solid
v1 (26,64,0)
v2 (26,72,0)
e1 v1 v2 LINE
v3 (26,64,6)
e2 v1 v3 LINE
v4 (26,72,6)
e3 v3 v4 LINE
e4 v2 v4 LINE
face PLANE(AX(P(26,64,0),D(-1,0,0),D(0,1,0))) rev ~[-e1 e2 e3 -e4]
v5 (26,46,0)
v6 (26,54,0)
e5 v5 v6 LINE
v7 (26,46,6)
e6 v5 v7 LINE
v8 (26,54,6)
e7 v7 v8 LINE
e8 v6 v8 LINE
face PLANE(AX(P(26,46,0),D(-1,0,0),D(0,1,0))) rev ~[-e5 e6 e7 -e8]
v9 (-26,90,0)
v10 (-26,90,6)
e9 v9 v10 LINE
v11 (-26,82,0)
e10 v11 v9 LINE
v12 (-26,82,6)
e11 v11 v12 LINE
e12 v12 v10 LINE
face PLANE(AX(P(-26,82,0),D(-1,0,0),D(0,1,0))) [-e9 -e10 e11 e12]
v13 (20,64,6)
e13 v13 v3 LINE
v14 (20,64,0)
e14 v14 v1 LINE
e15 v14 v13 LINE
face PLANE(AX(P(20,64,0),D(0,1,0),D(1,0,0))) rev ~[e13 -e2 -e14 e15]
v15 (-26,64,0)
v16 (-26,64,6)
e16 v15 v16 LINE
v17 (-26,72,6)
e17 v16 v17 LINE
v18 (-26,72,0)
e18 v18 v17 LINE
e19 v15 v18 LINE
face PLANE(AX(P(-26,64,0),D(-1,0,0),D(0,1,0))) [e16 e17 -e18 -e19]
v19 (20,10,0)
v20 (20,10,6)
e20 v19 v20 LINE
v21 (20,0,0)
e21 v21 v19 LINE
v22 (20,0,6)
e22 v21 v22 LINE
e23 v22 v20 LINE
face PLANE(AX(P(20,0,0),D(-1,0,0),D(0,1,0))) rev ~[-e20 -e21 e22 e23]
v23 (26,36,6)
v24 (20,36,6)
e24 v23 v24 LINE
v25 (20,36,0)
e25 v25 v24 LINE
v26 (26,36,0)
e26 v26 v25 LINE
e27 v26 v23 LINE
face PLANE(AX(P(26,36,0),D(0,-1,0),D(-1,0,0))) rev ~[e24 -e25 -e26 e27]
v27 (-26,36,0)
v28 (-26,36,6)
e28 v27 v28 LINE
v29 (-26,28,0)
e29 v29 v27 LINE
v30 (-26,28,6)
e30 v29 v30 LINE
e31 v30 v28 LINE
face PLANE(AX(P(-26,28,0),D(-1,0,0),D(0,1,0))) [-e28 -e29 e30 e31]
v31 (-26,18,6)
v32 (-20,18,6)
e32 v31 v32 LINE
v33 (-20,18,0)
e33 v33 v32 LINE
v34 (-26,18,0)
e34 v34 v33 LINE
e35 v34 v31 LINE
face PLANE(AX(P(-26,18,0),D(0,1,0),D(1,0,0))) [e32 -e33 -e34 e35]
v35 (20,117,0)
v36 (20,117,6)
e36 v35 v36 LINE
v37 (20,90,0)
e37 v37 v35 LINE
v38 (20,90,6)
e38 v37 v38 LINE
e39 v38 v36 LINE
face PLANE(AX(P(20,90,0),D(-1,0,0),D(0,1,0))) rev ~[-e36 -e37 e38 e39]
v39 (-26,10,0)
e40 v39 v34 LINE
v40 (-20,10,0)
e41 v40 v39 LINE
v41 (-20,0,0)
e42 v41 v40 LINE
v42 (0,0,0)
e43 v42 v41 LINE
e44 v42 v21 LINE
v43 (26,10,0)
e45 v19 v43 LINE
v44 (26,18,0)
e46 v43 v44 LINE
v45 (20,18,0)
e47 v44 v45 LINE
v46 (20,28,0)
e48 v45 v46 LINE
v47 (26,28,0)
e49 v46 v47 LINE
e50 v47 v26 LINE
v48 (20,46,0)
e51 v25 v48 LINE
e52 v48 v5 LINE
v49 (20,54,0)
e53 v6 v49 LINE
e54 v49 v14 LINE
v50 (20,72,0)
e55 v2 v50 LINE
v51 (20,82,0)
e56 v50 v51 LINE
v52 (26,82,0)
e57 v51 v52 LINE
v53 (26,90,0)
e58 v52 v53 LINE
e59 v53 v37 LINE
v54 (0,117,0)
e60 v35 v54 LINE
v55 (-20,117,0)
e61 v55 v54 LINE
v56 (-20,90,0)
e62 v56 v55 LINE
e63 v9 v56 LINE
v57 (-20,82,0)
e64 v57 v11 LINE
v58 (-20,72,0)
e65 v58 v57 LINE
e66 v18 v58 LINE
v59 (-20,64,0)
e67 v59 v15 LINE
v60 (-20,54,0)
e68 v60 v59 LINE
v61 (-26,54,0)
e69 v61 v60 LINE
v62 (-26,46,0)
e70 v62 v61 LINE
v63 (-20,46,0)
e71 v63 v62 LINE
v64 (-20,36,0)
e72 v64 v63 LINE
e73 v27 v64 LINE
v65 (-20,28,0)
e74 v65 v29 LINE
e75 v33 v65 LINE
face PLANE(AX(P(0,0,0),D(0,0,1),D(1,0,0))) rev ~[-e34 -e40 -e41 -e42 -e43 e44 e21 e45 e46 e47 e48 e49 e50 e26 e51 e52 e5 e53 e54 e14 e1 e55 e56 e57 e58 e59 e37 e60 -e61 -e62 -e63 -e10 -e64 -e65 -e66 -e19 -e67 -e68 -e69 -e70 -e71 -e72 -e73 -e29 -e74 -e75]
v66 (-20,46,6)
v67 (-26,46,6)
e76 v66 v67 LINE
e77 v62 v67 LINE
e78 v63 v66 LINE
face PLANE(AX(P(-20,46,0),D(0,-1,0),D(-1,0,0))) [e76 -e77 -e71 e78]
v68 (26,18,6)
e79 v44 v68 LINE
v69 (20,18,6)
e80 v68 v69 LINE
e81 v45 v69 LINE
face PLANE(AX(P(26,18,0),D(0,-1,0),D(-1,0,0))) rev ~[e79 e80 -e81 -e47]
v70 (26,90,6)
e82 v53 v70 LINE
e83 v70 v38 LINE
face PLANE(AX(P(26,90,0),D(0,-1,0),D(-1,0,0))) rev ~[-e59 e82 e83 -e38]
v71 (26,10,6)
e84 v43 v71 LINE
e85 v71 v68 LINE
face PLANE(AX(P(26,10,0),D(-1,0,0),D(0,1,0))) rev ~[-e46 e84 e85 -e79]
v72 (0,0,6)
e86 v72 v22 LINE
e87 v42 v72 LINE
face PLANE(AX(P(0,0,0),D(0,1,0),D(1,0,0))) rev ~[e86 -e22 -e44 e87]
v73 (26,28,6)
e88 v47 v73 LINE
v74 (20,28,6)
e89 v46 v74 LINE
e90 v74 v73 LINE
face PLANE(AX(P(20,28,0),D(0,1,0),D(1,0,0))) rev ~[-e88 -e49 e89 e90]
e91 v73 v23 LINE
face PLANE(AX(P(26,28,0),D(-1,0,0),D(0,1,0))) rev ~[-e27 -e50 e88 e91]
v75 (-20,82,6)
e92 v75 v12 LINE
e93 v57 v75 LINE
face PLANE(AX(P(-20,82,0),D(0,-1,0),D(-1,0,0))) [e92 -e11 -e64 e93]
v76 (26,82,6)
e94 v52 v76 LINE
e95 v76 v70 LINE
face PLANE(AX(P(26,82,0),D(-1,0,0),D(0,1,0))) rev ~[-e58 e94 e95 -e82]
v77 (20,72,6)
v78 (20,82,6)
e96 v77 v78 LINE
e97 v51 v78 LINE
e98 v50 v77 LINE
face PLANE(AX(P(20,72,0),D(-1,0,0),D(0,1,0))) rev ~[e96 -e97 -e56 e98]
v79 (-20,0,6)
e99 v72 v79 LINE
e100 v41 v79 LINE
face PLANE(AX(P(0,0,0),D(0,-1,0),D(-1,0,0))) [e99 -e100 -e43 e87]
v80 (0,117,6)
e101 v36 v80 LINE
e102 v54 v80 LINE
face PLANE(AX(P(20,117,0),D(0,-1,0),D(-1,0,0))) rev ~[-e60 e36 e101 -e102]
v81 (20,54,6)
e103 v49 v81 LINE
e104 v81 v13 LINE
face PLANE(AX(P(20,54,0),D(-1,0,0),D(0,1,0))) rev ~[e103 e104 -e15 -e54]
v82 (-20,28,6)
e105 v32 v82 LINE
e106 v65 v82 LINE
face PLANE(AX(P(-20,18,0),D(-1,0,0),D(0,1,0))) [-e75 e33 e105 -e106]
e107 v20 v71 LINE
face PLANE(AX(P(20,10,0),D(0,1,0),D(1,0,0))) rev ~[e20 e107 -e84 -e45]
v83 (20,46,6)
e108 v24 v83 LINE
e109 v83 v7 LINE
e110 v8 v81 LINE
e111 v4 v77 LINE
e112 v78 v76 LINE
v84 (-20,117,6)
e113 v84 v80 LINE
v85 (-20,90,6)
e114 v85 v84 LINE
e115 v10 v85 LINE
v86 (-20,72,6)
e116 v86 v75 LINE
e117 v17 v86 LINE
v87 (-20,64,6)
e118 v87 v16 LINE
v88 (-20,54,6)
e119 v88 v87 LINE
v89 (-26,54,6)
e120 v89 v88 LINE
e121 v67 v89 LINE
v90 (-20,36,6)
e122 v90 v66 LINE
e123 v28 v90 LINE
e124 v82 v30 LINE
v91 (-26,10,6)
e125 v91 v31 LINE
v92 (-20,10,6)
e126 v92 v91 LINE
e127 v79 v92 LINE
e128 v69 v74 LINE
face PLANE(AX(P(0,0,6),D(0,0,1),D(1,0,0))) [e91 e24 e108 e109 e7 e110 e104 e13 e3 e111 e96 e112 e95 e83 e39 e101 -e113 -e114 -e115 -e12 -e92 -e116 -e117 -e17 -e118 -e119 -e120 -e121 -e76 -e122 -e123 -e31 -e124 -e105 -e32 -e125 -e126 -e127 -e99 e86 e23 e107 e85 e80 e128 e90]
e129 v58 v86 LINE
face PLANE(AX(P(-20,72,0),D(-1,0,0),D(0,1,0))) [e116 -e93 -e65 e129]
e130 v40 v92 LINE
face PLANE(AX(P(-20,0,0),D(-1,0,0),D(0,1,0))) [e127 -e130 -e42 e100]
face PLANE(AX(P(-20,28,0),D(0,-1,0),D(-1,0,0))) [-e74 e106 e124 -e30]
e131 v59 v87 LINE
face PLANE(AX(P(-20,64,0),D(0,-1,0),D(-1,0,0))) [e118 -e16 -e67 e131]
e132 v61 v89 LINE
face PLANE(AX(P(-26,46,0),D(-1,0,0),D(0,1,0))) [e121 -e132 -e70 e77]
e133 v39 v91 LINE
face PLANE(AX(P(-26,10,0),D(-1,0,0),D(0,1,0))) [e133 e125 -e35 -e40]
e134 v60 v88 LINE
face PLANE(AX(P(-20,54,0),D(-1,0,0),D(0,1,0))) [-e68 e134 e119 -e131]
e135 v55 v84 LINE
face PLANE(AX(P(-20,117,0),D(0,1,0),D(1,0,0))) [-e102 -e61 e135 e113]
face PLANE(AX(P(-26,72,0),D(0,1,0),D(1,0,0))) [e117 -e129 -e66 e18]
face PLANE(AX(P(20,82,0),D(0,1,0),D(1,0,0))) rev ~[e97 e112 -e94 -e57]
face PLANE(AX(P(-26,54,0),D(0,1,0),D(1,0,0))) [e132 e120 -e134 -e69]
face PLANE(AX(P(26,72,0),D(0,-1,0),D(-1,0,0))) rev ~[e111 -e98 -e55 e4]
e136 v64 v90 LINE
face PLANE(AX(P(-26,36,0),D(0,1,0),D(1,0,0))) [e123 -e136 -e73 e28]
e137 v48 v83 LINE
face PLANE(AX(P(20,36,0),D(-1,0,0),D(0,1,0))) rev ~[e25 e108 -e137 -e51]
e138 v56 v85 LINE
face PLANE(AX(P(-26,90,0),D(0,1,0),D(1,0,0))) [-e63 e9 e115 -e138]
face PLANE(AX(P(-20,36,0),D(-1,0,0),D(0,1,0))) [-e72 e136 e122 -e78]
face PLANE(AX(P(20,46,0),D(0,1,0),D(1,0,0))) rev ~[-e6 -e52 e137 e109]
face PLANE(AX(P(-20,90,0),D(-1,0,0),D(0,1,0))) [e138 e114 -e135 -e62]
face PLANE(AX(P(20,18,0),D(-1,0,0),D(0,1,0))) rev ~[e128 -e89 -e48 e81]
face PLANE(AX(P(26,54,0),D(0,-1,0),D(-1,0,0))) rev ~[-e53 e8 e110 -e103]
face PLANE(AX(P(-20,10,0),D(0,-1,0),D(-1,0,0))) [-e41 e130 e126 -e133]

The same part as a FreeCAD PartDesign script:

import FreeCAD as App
import Part
import Sketcher

doc = App.newDocument("Part")
params = doc.addObject("Spreadsheet::Sheet", "Params")
for row, (alias, value) in enumerate([
    ("sketch1_width", "6 mm"),
    ("sketch1_height", "10 mm"),
    ("sketch1_height2", "8 mm"),
    ("pad1_length", "6 mm"),
], start=1):
    params.set(f"A{row}", alias)
    params.set(f"B{row}", "=" + value)
    params.setAlias(f"B{row}", alias)

body = doc.addObject("PartDesign::Body", "Body")

# Sketch on XY plane
sketch1 = doc.addObject("Sketcher::SketchObject", "Sketch")
body.addObject(sketch1)
sketch1.AttachmentSupport = (doc.XY_Plane, [""])
sketch1.MapMode = "FlatFace"
sketch1.addGeometry([
    Part.LineSegment(App.Vector(-20, 0, 0), App.Vector(20, 0, 0)),  # 0
    Part.LineSegment(App.Vector(20, 0, 0), App.Vector(20, 10, 0)),  # 1
    Part.LineSegment(App.Vector(20, 10, 0), App.Vector(26, 10, 0)),  # 2
    Part.LineSegment(App.Vector(26, 10, 0), App.Vector(26, 18, 0)),  # 3
    Part.LineSegment(App.Vector(26, 18, 0), App.Vector(20, 18, 0)),  # 4
    Part.LineSegment(App.Vector(20, 18, 0), App.Vector(20, 28, 0)),  # 5
    Part.LineSegment(App.Vector(20, 28, 0), App.Vector(26, 28, 0)),  # 6
    Part.LineSegment(App.Vector(26, 28, 0), App.Vector(26, 36, 0)),  # 7
    Part.LineSegment(App.Vector(26, 36, 0), App.Vector(20, 36, 0)),  # 8
    Part.LineSegment(App.Vector(20, 36, 0), App.Vector(20, 46, 0)),  # 9
    Part.LineSegment(App.Vector(20, 46, 0), App.Vector(26, 46, 0)),  # 10
    Part.LineSegment(App.Vector(26, 46, 0), App.Vector(26, 54, 0)),  # 11
    Part.LineSegment(App.Vector(26, 54, 0), App.Vector(20, 54, 0)),  # 12
    Part.LineSegment(App.Vector(20, 54, 0), App.Vector(20, 64, 0)),  # 13
    Part.LineSegment(App.Vector(20, 64, 0), App.Vector(26, 64, 0)),  # 14
    Part.LineSegment(App.Vector(26, 64, 0), App.Vector(26, 72, 0)),  # 15
    Part.LineSegment(App.Vector(26, 72, 0), App.Vector(20, 72, 0)),  # 16
    Part.LineSegment(App.Vector(20, 72, 0), App.Vector(20, 82, 0)),  # 17
    Part.LineSegment(App.Vector(20, 82, 0), App.Vector(26, 82, 0)),  # 18
    Part.LineSegment(App.Vector(26, 82, 0), App.Vector(26, 90, 0)),  # 19
    Part.LineSegment(App.Vector(26, 90, 0), App.Vector(20, 90, 0)),  # 20
    Part.LineSegment(App.Vector(20, 90, 0), App.Vector(20, 117, 0)),  # 21
    Part.LineSegment(App.Vector(20, 117, 0), App.Vector(-20, 117, 0)),  # 22
    Part.LineSegment(App.Vector(-20, 117, 0), App.Vector(-20, 90, 0)),  # 23
    Part.LineSegment(App.Vector(-20, 90, 0), App.Vector(-26, 90, 0)),  # 24
    Part.LineSegment(App.Vector(-26, 90, 0), App.Vector(-26, 82, 0)),  # 25
    Part.LineSegment(App.Vector(-26, 82, 0), App.Vector(-20, 82, 0)),  # 26
    Part.LineSegment(App.Vector(-20, 82, 0), App.Vector(-20, 72, 0)),  # 27
    Part.LineSegment(App.Vector(-20, 72, 0), App.Vector(-26, 72, 0)),  # 28
    Part.LineSegment(App.Vector(-26, 72, 0), App.Vector(-26, 64, 0)),  # 29
    Part.LineSegment(App.Vector(-26, 64, 0), App.Vector(-20, 64, 0)),  # 30
    Part.LineSegment(App.Vector(-20, 64, 0), App.Vector(-20, 54, 0)),  # 31
    Part.LineSegment(App.Vector(-20, 54, 0), App.Vector(-26, 54, 0)),  # 32
    Part.LineSegment(App.Vector(-26, 54, 0), App.Vector(-26, 46, 0)),  # 33
    Part.LineSegment(App.Vector(-26, 46, 0), App.Vector(-20, 46, 0)),  # 34
    Part.LineSegment(App.Vector(-20, 46, 0), App.Vector(-20, 36, 0)),  # 35
    Part.LineSegment(App.Vector(-20, 36, 0), App.Vector(-26, 36, 0)),  # 36
    Part.LineSegment(App.Vector(-26, 36, 0), App.Vector(-26, 28, 0)),  # 37
    Part.LineSegment(App.Vector(-26, 28, 0), App.Vector(-20, 28, 0)),  # 38
    Part.LineSegment(App.Vector(-20, 28, 0), App.Vector(-20, 18, 0)),  # 39
    Part.LineSegment(App.Vector(-20, 18, 0), App.Vector(-26, 18, 0)),  # 40
    Part.LineSegment(App.Vector(-26, 18, 0), App.Vector(-26, 10, 0)),  # 41
    Part.LineSegment(App.Vector(-26, 10, 0), App.Vector(-20, 10, 0)),  # 42
    Part.LineSegment(App.Vector(-20, 10, 0), App.Vector(-20, 0, 0)),  # 43
], False)
sketch1.addConstraint([
    Sketcher.Constraint("Coincident", 0, 2, 1, 1),
    Sketcher.Constraint("Coincident", 1, 2, 2, 1),
    Sketcher.Constraint("Coincident", 2, 2, 3, 1),
    Sketcher.Constraint("Coincident", 3, 2, 4, 1),
    Sketcher.Constraint("Coincident", 4, 2, 5, 1),
    Sketcher.Constraint("Coincident", 5, 2, 6, 1),
    Sketcher.Constraint("Coincident", 6, 2, 7, 1),
    Sketcher.Constraint("Coincident", 7, 2, 8, 1),
    Sketcher.Constraint("Coincident", 8, 2, 9, 1),
    Sketcher.Constraint("Coincident", 9, 2, 10, 1),
    Sketcher.Constraint("Coincident", 10, 2, 11, 1),
    Sketcher.Constraint("Coincident", 11, 2, 12, 1),
    Sketcher.Constraint("Coincident", 12, 2, 13, 1),
    Sketcher.Constraint("Coincident", 13, 2, 14, 1),
    Sketcher.Constraint("Coincident", 14, 2, 15, 1),
    Sketcher.Constraint("Coincident", 15, 2, 16, 1),
    Sketcher.Constraint("Coincident", 16, 2, 17, 1),
    Sketcher.Constraint("Coincident", 17, 2, 18, 1),
    Sketcher.Constraint("Coincident", 18, 2, 19, 1),
    Sketcher.Constraint("Coincident", 19, 2, 20, 1),
    Sketcher.Constraint("Coincident", 20, 2, 21, 1),
    Sketcher.Constraint("Coincident", 21, 2, 22, 1),
    Sketcher.Constraint("Coincident", 22, 2, 23, 1),
    Sketcher.Constraint("Coincident", 23, 2, 24, 1),
    Sketcher.Constraint("Coincident", 24, 2, 25, 1),
    Sketcher.Constraint("Coincident", 25, 2, 26, 1),
    Sketcher.Constraint("Coincident", 26, 2, 27, 1),
    Sketcher.Constraint("Coincident", 27, 2, 28, 1),
    Sketcher.Constraint("Coincident", 28, 2, 29, 1),
    Sketcher.Constraint("Coincident", 29, 2, 30, 1),
    Sketcher.Constraint("Coincident", 30, 2, 31, 1),
    Sketcher.Constraint("Coincident", 31, 2, 32, 1),
    Sketcher.Constraint("Coincident", 32, 2, 33, 1),
    Sketcher.Constraint("Coincident", 33, 2, 34, 1),
    Sketcher.Constraint("Coincident", 34, 2, 35, 1),
    Sketcher.Constraint("Coincident", 35, 2, 36, 1),
    Sketcher.Constraint("Coincident", 36, 2, 37, 1),
    Sketcher.Constraint("Coincident", 37, 2, 38, 1),
    Sketcher.Constraint("Coincident", 38, 2, 39, 1),
    Sketcher.Constraint("Coincident", 39, 2, 40, 1),
    Sketcher.Constraint("Coincident", 40, 2, 41, 1),
    Sketcher.Constraint("Coincident", 41, 2, 42, 1),
    Sketcher.Constraint("Coincident", 42, 2, 43, 1),
    Sketcher.Constraint("Coincident", 43, 2, 0, 1),
    Sketcher.Constraint("Horizontal", 0),
    Sketcher.Constraint("Vertical", 1),
    Sketcher.Constraint("Horizontal", 2),
    Sketcher.Constraint("Vertical", 3),
    Sketcher.Constraint("Horizontal", 4),
    Sketcher.Constraint("Vertical", 5),
    Sketcher.Constraint("Horizontal", 6),
    Sketcher.Constraint("Vertical", 7),
    Sketcher.Constraint("Horizontal", 8),
    Sketcher.Constraint("Vertical", 9),
    Sketcher.Constraint("Horizontal", 10),
    Sketcher.Constraint("Vertical", 11),
    Sketcher.Constraint("Horizontal", 12),
    Sketcher.Constraint("Vertical", 13),
    Sketcher.Constraint("Horizontal", 14),
    Sketcher.Constraint("Vertical", 15),
    Sketcher.Constraint("Horizontal", 16),
    Sketcher.Constraint("Vertical", 17),
    Sketcher.Constraint("Horizontal", 18),
    Sketcher.Constraint("Vertical", 19),
    Sketcher.Constraint("Horizontal", 20),
    Sketcher.Constraint("Vertical", 21),
    Sketcher.Constraint("Horizontal", 22),
    Sketcher.Constraint("Vertical", 23),
    Sketcher.Constraint("Horizontal", 24),
    Sketcher.Constraint("Vertical", 25),
    Sketcher.Constraint("Horizontal", 26),
    Sketcher.Constraint("Vertical", 27),
    Sketcher.Constraint("Horizontal", 28),
    Sketcher.Constraint("Vertical", 29),
    Sketcher.Constraint("Horizontal", 30),
    Sketcher.Constraint("Vertical", 31),
    Sketcher.Constraint("Horizontal", 32),
    Sketcher.Constraint("Vertical", 33),
    Sketcher.Constraint("Horizontal", 34),
    Sketcher.Constraint("Vertical", 35),
    Sketcher.Constraint("Horizontal", 36),
    Sketcher.Constraint("Vertical", 37),
    Sketcher.Constraint("Horizontal", 38),
    Sketcher.Constraint("Vertical", 39),
    Sketcher.Constraint("Horizontal", 40),
    Sketcher.Constraint("Vertical", 41),
    Sketcher.Constraint("Horizontal", 42),
    Sketcher.Constraint("Vertical", 43),
    Sketcher.Constraint("Symmetric", 0, 2, 43, 2, -1, 1),
    Sketcher.Constraint("Symmetric", 20, 2, 23, 2, -2),
    Sketcher.Constraint("Symmetric", 18, 2, 25, 2, -2),
    Sketcher.Constraint("Symmetric", 16, 2, 27, 2, -2),
    Sketcher.Constraint("Symmetric", 14, 2, 29, 2, -2),
    Sketcher.Constraint("Symmetric", 12, 2, 31, 2, -2),
    Sketcher.Constraint("Symmetric", 10, 2, 33, 2, -2),
    Sketcher.Constraint("Symmetric", 8, 2, 35, 2, -2),
    Sketcher.Constraint("Symmetric", 6, 2, 37, 2, -2),
    Sketcher.Constraint("Symmetric", 4, 2, 39, 2, -2),
    Sketcher.Constraint("Symmetric", 2, 2, 41, 2, -2),
    Sketcher.Constraint("Vertical", 1, 2, 4, 2),
    Sketcher.Constraint("Vertical", 3, 2, 6, 2),
    Sketcher.Constraint("Vertical", 5, 2, 8, 2),
    Sketcher.Constraint("Vertical", 7, 2, 10, 2),
    Sketcher.Constraint("Vertical", 9, 2, 12, 2),
    Sketcher.Constraint("Vertical", 11, 2, 14, 2),
    Sketcher.Constraint("Vertical", 13, 2, 16, 2),
    Sketcher.Constraint("Vertical", 15, 2, 18, 2),
    Sketcher.Constraint("Vertical", 17, 2, 20, 2),
    Sketcher.Constraint("Equal", 1, 5),
    Sketcher.Constraint("Equal", 3, 7),
    Sketcher.Constraint("Equal", 5, 9),
    Sketcher.Constraint("Equal", 7, 11),
    Sketcher.Constraint("Equal", 9, 13),
    Sketcher.Constraint("Equal", 11, 15),
    Sketcher.Constraint("Equal", 13, 17),
    Sketcher.Constraint("Equal", 15, 19),
    Sketcher.Constraint("DistanceX", 2, 1, 2, 2, 6.0),
    Sketcher.Constraint("DistanceY", 1, 1, 1, 2, 10.0),
    Sketcher.Constraint("DistanceY", 3, 1, 3, 2, 8.0),
    Sketcher.Constraint("DistanceX", -1, 1, 0, 2, 20.0),
    Sketcher.Constraint("DistanceY", -1, 1, 21, 2, 117.0),
])
sketch1.setExpression("Constraints[116]", "Params.sketch1_width")
sketch1.setExpression("Constraints[117]", "Params.sketch1_height")
sketch1.setExpression("Constraints[118]", "Params.sketch1_height2")
pad1 = doc.addObject("PartDesign::Pad", "Pad")
body.addObject(pad1)
pad1.Profile = sketch1
pad1.setExpression("Length", "Params.pad1_length")

doc.recompute()
